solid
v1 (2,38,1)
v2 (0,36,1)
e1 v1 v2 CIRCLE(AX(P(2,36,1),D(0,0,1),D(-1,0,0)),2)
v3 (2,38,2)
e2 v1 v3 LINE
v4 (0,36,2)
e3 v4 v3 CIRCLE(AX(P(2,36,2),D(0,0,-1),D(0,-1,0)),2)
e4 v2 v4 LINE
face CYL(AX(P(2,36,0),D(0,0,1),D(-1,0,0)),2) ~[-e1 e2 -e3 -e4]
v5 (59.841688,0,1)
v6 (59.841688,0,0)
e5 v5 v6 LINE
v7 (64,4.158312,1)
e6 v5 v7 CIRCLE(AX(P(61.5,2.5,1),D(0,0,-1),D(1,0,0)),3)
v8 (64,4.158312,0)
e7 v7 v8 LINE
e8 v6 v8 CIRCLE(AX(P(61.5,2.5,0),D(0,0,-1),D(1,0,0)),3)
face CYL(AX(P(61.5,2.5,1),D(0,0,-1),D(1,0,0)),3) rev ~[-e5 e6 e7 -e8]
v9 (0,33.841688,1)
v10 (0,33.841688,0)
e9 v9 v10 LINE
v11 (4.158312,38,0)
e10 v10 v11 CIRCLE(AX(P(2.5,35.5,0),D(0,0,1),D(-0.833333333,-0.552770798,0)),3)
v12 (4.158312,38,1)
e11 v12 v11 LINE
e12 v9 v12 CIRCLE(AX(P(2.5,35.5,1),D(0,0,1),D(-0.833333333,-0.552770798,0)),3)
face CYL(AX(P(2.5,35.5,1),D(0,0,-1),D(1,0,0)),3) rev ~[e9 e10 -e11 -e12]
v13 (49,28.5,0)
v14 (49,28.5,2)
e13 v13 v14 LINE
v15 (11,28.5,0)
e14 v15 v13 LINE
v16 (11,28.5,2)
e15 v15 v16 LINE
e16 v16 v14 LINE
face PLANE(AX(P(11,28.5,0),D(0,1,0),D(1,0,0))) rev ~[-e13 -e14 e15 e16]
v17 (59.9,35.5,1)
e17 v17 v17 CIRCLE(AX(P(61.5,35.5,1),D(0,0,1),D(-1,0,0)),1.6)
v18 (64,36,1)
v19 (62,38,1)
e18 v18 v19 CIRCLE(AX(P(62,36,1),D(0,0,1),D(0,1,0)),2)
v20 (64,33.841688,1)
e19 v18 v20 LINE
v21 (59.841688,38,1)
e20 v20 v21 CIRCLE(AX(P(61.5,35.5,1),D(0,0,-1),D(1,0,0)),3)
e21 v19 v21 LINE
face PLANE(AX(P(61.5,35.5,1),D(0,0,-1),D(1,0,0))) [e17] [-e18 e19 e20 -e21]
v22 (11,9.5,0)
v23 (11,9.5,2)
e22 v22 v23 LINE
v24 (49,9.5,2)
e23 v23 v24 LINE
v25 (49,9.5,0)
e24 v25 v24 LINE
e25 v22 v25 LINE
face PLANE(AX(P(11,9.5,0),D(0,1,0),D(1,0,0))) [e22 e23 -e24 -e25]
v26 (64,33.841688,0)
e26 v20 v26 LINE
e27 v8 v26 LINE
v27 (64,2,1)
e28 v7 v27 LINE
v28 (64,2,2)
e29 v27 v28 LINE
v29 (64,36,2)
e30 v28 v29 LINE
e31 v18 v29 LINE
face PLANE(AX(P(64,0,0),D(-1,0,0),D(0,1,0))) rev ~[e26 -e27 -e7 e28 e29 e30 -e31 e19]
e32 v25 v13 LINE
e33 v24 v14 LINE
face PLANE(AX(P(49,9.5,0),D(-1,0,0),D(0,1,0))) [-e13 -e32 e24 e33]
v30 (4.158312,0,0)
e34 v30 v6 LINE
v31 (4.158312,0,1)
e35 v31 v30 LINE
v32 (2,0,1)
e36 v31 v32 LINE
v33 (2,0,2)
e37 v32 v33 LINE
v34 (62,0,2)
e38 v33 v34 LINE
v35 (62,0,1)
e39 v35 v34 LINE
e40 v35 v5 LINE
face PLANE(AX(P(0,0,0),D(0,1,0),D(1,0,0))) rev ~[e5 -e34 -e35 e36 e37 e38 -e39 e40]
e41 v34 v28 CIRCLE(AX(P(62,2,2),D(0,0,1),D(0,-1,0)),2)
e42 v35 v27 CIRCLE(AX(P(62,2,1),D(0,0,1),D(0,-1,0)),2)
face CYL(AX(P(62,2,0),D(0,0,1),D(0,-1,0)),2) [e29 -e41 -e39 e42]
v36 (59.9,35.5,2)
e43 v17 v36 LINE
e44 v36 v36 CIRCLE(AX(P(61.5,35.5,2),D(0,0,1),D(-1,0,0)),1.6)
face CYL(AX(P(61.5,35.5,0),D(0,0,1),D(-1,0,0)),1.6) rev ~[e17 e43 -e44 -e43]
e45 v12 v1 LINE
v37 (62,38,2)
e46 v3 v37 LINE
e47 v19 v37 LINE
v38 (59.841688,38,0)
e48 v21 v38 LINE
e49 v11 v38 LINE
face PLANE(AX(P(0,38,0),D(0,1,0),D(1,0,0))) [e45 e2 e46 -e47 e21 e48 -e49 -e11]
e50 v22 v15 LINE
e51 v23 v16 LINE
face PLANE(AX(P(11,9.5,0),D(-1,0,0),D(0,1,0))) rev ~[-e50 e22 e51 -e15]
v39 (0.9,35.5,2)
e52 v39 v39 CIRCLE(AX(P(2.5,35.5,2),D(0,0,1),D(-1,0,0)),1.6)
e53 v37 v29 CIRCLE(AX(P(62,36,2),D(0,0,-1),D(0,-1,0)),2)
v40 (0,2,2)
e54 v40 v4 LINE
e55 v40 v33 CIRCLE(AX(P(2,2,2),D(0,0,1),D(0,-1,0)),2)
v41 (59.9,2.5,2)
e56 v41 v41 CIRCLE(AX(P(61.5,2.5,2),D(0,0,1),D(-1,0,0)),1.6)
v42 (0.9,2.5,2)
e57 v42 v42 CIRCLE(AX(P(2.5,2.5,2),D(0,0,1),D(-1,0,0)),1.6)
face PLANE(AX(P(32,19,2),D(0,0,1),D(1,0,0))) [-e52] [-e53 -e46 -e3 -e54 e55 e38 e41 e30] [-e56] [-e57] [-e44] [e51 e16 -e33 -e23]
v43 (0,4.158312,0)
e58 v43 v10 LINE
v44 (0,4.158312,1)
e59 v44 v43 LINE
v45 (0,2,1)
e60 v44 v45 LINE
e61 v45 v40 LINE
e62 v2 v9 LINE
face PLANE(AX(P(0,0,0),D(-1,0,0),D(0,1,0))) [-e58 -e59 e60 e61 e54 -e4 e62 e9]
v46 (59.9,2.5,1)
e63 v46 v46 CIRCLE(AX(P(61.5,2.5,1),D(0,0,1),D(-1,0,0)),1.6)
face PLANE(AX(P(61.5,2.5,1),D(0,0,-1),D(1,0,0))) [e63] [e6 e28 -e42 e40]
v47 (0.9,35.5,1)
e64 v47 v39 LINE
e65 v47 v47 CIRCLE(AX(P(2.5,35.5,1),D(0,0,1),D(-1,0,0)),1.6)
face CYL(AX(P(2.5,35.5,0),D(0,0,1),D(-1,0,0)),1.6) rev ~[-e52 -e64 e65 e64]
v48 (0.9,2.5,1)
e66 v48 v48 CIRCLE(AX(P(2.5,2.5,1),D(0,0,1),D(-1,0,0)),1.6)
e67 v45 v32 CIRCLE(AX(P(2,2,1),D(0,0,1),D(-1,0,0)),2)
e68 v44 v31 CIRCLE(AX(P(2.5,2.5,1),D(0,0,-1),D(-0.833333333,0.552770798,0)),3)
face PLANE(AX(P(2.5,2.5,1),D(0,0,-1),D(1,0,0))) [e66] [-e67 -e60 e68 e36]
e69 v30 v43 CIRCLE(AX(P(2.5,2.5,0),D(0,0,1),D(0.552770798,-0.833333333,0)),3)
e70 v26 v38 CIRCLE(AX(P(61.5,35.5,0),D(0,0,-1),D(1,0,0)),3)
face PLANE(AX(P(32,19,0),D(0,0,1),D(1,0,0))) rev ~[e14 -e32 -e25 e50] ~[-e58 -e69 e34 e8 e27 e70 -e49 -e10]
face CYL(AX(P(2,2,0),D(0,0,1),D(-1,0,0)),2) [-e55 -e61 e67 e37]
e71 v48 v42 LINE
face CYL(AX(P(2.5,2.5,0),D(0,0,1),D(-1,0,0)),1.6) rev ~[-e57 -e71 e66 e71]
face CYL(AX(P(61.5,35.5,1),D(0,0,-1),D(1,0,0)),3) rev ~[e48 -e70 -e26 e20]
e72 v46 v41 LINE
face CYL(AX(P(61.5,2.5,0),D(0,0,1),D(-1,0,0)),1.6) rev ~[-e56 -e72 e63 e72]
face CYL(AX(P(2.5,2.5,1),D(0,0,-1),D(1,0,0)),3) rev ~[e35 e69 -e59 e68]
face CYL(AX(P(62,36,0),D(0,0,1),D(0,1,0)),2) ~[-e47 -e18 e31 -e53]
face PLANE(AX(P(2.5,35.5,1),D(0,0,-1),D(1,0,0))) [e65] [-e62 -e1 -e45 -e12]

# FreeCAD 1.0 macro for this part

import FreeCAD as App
import Part
import Sketcher
from FreeCAD import Vector
Q = App.Units.Quantity


def edges_at(feature, points):
    """Names of the edges that pass closest to the given points."""
    edges = feature.Shape.Edges
    near = lambda p: min(range(len(edges)), key=lambda i: edges[i].distToShape(Part.Vertex(*p))[0])
    return sorted({f"Edge{near(p) + 1}" for p in points})


def add_polygon(sketch, points):
    """Adds a closed chain of lines whose ends are joined by coincident constraints."""
    first, n = sketch.GeometryCount, len(points)
    for a, b in zip(points, points[1:] + points[:1]):
        sketch.addGeometry(Part.LineSegment(App.Vector(*a, 0), App.Vector(*b, 0)), False)
    for i in range(n):
        sketch.addConstraint(Sketcher.Constraint("Coincident", first + i, 2, first + (i + 1) % n, 1))

doc = App.newDocument("Part")
params = doc.addObject("Spreadsheet::Sheet", "Params")
for row, (alias, value) in enumerate([
    ("sketch1_width", "64 mm"),
    ("sketch1_width2", "38 mm"),
    ("sketch1_height", "19 mm"),
    ("pad1_length", "2 mm"),
    ("fillet_radius", "2 mm"),
    ("sketch2_diameter", "3.2 mm"),
    ("hole_diameter", "3.2 mm"),
    ("hole_cbore_diameter", "6 mm"),
    ("hole_cbore_depth", "1 mm"),
], start=1):
    params.set(f"A{row}", alias)
    params.set(f"B{row}", "=" + value)
    params.setAlias(f"B{row}", alias)

body = doc.addObject("PartDesign::Body", "Body")

# Sketch on XY plane
sketch1 = doc.addObject("Sketcher::SketchObject", "Sketch")
body.addObject(sketch1)
sketch1.AttachmentSupport = (doc.XY_Plane, [""])
sketch1.MapMode = "FlatFace"
add_polygon(sketch1, [(0, 38), (0, 0), (64, 0), (64, 38)])  # lines 0-3
add_polygon(sketch1, [(49, 9.5), (11, 9.5), (11, 28.5), (49, 28.5)])  # lines 4-7
sketch1.addConstraint([
    Sketcher.Constraint("Vertical", 0),
    Sketcher.Constraint("Horizontal", 1),
    Sketcher.Constraint("Vertical", 2),
    Sketcher.Constraint("Horizontal", 3),
    Sketcher.Constraint("Horizontal", 4),
    Sketcher.Constraint("Vertical", 5),
    Sketcher.Constraint("Horizontal", 6),
    Sketcher.Constraint("Vertical", 7),
    Sketcher.Constraint("Coincident", 0, 2, -1, 1),
    Sketcher.Constraint("Equal", 6, 0),
    Sketcher.Constraint("DistanceX", 1, 1, 1, 2, Q("64 mm")),
    Sketcher.Constraint("DistanceX", 4, 2, 4, 1, Q("38 mm")),
    Sketcher.Constraint("DistanceY", 5, 1, 5, 2, Q("19 mm")),
    Sketcher.Constraint("DistanceX", -1, 1, 4, 2, Q("11 mm")),
    Sketcher.Constraint("DistanceY", -1, 1, 4, 2, Q("9.5 mm")),
])
sketch1.setExpression("Constraints[18]", "Params.sketch1_width")
sketch1.setExpression("Constraints[19]", "Params.sketch1_width2")
sketch1.setExpression("Constraints[20]", "Params.sketch1_height")
pad1 = doc.addObject("PartDesign::Pad", "Pad")
body.addObject(pad1)
pad1.Profile = sketch1
pad1.setExpression("Length", "Params.pad1_length")
doc.recompute()

fillet = doc.addObject("PartDesign::Fillet", "Fillet")
body.addObject(fillet)
fillet.Base = (pad1, edges_at(pad1, [
    (0, 38, 1),
    (0, 0, 1),
    (64, 0, 1),
    (64, 38, 1),
]))
fillet.setExpression("Radius", "Params.fillet_radius")

# Sketch on XY plane
sketch2 = doc.addObject("Sketcher::SketchObject", "Sketch001")
body.addObject(sketch2)
sketch2.AttachmentSupport = (doc.XY_Plane, [""])
sketch2.MapMode = "FlatFace"
sketch2.addGeometry([
    Part.Circle(Vector(2.5, 2.5, 0), Vector(0, 0, 1), 1.6),
    Part.Circle(Vector(2.5, 35.5, 0), Vector(0, 0, 1), 1.6),
    Part.Circle(Vector(61.5, 35.5, 0), Vector(0, 0, 1), 1.6),
    Part.Circle(Vector(61.5, 2.5, 0), Vector(0, 0, 1), 1.6),
], False)
sketch2.addConstraint([
    Sketcher.Constraint("Equal", 0, 1),
    Sketcher.Constraint("Equal", 1, 2),
    Sketcher.Constraint("Equal", 2, 3),
    Sketcher.Constraint("Horizontal", 1, 3, 2, 3),
    Sketcher.Constraint("Horizontal", 0, 3, 3, 3),
    Sketcher.Constraint("Vertical", 0, 3, 1, 3),
    Sketcher.Constraint("Vertical", 2, 3, 3, 3),
    Sketcher.Constraint("Diameter", 0, Q("3.2 mm")),
    Sketcher.Constraint("DistanceY", 0, 3, 1, 3, Q("33 mm")),
    Sketcher.Constraint("DistanceX", 1, 3, 2, 3, Q("59 mm")),
    Sketcher.Constraint("DistanceX", -1, 1, 0, 3, Q("2.5 mm")),
    Sketcher.Constraint("DistanceY", -1, 1, 0, 3, Q("2.5 mm")),
])
sketch2.setExpression("Constraints[7]", "Params.sketch2_diameter")
doc.recompute()
hole = doc.addObject("PartDesign::Hole", "Hole")
body.addObject(hole)
hole.Profile = sketch2
hole.ThreadType = "None"
hole.setExpression("Diameter", "Params.hole_diameter")
hole.DepthType = "ThroughAll"
hole.HoleCutType = "Counterbore"
hole.setExpression("HoleCutDiameter", "Params.hole_cbore_diameter")
hole.setExpression("HoleCutDepth", "Params.hole_cbore_depth")
hole.Reversed = True

doc.recompute()
